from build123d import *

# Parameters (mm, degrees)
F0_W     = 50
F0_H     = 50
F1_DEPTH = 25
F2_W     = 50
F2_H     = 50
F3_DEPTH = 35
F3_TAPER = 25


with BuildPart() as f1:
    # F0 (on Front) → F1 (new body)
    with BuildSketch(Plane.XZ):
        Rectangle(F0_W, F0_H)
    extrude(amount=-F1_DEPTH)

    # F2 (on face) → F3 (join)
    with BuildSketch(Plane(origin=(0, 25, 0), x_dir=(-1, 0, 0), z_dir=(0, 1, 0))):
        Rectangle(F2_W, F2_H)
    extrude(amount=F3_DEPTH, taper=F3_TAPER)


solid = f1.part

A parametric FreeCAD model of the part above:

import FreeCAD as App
import Part
import Sketcher

doc = App.newDocument("Part")
body = doc.addObject("PartDesign::Body", "Body")

# Sketch on XZ plane
sketch1 = body.newObject("Sketcher::SketchObject", "Sketch")
sketch1.AttachmentSupport = (doc.getObject("XZ_Plane"), [""])
sketch1.MapMode = "FlatFace"
sketch1.addGeometry([
    Part.LineSegment(App.Vector(-25, 25, 0), App.Vector(-25, -25, 0)),
    Part.LineSegment(App.Vector(-25, -25, 0), App.Vector(25, -25, 0)),
    Part.LineSegment(App.Vector(25, -25, 0), App.Vector(25, 25, 0)),
    Part.LineSegment(App.Vector(25, 25, 0), App.Vector(-25, 25, 0)),
], False)
sketch1.addConstraint([
    Sketcher.Constraint("Coincident", 0, 2, 1, 1),
    Sketcher.Constraint("Coincident", 1, 2, 2, 1),
    Sketcher.Constraint("Coincident", 2, 2, 3, 1),
    Sketcher.Constraint("Coincident", 3, 2, 0, 1),
    Sketcher.Constraint("Vertical", 0),
    Sketcher.Constraint("Horizontal", 1),
    Sketcher.Constraint("Vertical", 2),
    Sketcher.Constraint("Horizontal", 3),
    Sketcher.Constraint("Symmetric", 0, 2, 2, 2, -1, 1),
    Sketcher.Constraint("Equal", 3, 0),
    Sketcher.Constraint("DistanceX", 1, 1, 1, 2, 50.0),
])
pad1 = body.newObject("PartDesign::Pad", "Pad")
pad1.Profile = sketch1
pad1.Length = 25
pad1.Reversed = True

# Sketch on XZ plane
sketch2 = body.newObject("Sketcher::SketchObject", "Sketch001")
sketch2.AttachmentSupport = (doc.getObject("XZ_Plane"), [""])
sketch2.MapMode = "FlatFace"
sketch2.AttachmentOffset = App.Placement(App.Vector(0, 0, -25), App.Rotation())
sketch2.addGeometry([
    Part.LineSegment(App.Vector(25, 25, 0), App.Vector(25, -25, 0)),
    Part.LineSegment(App.Vector(25, -25, 0), App.Vector(-25, -25, 0)),
    Part.LineSegment(App.Vector(-25, -25, 0), App.Vector(-25, 25, 0)),
    Part.LineSegment(App.Vector(-25, 25, 0), App.Vector(25, 25, 0)),
], False)
sketch2.addConstraint([
    Sketcher.Constraint("Coincident", 0, 2, 1, 1),
    Sketcher.Constraint("Coincident", 1, 2, 2, 1),
    Sketcher.Constraint("Coincident", 2, 2, 3, 1),
    Sketcher.Constraint("Coincident", 3, 2, 0, 1),
    Sketcher.Constraint("Vertical", 0),
    Sketcher.Constraint("Horizontal", 1),
    Sketcher.Constraint("Vertical", 2),
    Sketcher.Constraint("Horizontal", 3),
    Sketcher.Constraint("Symmetric", 0, 2, 2, 2, -1, 1),
    Sketcher.Constraint("Equal", 3, 0),
    Sketcher.Constraint("DistanceX", 1, 2, 1, 1, 50.0),
])
pad2 = body.newObject("PartDesign::Pad", "Pad001")
pad2.Profile = sketch2
pad2.Length = 35
pad2.Reversed = True
pad2.TaperAngle = -25

doc.recompute()
